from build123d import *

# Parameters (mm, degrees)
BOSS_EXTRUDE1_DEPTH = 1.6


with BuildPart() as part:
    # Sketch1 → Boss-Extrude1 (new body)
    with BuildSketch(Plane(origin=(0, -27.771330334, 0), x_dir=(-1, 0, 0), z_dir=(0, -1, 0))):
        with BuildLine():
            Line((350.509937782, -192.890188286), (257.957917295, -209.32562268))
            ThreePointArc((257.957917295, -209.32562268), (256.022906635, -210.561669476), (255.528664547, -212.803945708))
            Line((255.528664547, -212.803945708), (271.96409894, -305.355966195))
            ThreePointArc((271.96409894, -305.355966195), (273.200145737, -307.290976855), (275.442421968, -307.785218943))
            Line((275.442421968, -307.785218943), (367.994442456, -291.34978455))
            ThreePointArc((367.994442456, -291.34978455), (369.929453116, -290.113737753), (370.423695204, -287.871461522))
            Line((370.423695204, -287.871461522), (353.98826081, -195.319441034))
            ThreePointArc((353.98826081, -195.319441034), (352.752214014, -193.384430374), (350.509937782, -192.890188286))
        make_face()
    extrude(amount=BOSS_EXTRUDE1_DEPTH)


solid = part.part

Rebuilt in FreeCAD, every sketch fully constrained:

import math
import FreeCAD as App
import Part
import Sketcher

doc = App.newDocument("Part")
body = doc.addObject("PartDesign::Body", "Body")

sketch1 = body.newObject("Sketcher::SketchObject", "Sketch")
sketch1.AttachmentSupport = (doc.getObject("XZ_Plane"), [""])
sketch1.MapMode = "FlatFace"
sketch1.AttachmentOffset = App.Placement(App.Vector(0, 0, 27.77133), App.Rotation())
sketch1.addGeometry([
    Part.LineSegment(App.Vector(-350.509938, 192.890188, 0), App.Vector(-257.957917, 209.325623, 0)),
    Part.ArcOfCircle(Part.Circle(App.Vector(-258.482452, 212.279411, 0), App.Vector(0, 0, 1), 3), math.radians(-79.930359), math.radians(10.069641)),
    Part.LineSegment(App.Vector(-255.528665, 212.803946, 0), App.Vector(-271.964099, 305.355966, 0)),
    Part.ArcOfCircle(Part.Circle(App.Vector(-274.917887, 304.831431, 0), App.Vector(0, 0, 1), 3), math.radians(10.069641), math.radians(100.069641)),
    Part.LineSegment(App.Vector(-275.442422, 307.785219, 0), App.Vector(-367.994442, 291.349785, 0)),
    Part.ArcOfCircle(Part.Circle(App.Vector(-367.469907, 288.395997, 0), App.Vector(0, 0, 1), 3), math.radians(100.069641), math.radians(190.069641)),
    Part.LineSegment(App.Vector(-370.423695, 287.871462, 0), App.Vector(-353.988261, 195.319441, 0)),
    Part.ArcOfCircle(Part.Circle(App.Vector(-351.034473, 195.843976, 0), App.Vector(0, 0, 1), 3), math.radians(-169.930359), math.radians(-79.930359)),
], False)
sketch1.addConstraint([
    Sketcher.Constraint("Tangent", 0, 2, 1, 1),
    Sketcher.Constraint("Tangent", 1, 2, 2, 1),
    Sketcher.Constraint("Tangent", 2, 2, 3, 1),
    Sketcher.Constraint("Tangent", 3, 2, 4, 1),
    Sketcher.Constraint("Tangent", 4, 2, 5, 1),
    Sketcher.Constraint("Tangent", 5, 2, 6, 1),
    Sketcher.Constraint("Tangent", 6, 2, 7, 1),
    Sketcher.Constraint("Tangent", 7, 2, 0, 1),
    Sketcher.Constraint("Equal", 1, 3),
    Sketcher.Constraint("Equal", 3, 5),
    Sketcher.Constraint("Equal", 5, 7),
    Sketcher.Constraint("Perpendicular", 0, 2),
    Sketcher.Constraint("Perpendicular", 2, 4),
    Sketcher.Constraint("Perpendicular", 4, 6),
    Sketcher.Constraint("Equal", 0, 2),
    Sketcher.Constraint("Radius", 1, 3.0),
    Sketcher.Constraint("Distance", 0, 94.0),
    Sketcher.Constraint("DistanceX", 2, 2, -1, 1, 271.964099),
    Sketcher.Constraint("DistanceY", -1, 1, 1, 3, 212.279411),
    Sketcher.Constraint("DistanceY", -1, 1, 3, 3, 304.831431),
])
pad1 = body.newObject("PartDesign::Pad", "Pad")
pad1.Profile = sketch1
pad1.Length = 1.6

doc.recompute()
